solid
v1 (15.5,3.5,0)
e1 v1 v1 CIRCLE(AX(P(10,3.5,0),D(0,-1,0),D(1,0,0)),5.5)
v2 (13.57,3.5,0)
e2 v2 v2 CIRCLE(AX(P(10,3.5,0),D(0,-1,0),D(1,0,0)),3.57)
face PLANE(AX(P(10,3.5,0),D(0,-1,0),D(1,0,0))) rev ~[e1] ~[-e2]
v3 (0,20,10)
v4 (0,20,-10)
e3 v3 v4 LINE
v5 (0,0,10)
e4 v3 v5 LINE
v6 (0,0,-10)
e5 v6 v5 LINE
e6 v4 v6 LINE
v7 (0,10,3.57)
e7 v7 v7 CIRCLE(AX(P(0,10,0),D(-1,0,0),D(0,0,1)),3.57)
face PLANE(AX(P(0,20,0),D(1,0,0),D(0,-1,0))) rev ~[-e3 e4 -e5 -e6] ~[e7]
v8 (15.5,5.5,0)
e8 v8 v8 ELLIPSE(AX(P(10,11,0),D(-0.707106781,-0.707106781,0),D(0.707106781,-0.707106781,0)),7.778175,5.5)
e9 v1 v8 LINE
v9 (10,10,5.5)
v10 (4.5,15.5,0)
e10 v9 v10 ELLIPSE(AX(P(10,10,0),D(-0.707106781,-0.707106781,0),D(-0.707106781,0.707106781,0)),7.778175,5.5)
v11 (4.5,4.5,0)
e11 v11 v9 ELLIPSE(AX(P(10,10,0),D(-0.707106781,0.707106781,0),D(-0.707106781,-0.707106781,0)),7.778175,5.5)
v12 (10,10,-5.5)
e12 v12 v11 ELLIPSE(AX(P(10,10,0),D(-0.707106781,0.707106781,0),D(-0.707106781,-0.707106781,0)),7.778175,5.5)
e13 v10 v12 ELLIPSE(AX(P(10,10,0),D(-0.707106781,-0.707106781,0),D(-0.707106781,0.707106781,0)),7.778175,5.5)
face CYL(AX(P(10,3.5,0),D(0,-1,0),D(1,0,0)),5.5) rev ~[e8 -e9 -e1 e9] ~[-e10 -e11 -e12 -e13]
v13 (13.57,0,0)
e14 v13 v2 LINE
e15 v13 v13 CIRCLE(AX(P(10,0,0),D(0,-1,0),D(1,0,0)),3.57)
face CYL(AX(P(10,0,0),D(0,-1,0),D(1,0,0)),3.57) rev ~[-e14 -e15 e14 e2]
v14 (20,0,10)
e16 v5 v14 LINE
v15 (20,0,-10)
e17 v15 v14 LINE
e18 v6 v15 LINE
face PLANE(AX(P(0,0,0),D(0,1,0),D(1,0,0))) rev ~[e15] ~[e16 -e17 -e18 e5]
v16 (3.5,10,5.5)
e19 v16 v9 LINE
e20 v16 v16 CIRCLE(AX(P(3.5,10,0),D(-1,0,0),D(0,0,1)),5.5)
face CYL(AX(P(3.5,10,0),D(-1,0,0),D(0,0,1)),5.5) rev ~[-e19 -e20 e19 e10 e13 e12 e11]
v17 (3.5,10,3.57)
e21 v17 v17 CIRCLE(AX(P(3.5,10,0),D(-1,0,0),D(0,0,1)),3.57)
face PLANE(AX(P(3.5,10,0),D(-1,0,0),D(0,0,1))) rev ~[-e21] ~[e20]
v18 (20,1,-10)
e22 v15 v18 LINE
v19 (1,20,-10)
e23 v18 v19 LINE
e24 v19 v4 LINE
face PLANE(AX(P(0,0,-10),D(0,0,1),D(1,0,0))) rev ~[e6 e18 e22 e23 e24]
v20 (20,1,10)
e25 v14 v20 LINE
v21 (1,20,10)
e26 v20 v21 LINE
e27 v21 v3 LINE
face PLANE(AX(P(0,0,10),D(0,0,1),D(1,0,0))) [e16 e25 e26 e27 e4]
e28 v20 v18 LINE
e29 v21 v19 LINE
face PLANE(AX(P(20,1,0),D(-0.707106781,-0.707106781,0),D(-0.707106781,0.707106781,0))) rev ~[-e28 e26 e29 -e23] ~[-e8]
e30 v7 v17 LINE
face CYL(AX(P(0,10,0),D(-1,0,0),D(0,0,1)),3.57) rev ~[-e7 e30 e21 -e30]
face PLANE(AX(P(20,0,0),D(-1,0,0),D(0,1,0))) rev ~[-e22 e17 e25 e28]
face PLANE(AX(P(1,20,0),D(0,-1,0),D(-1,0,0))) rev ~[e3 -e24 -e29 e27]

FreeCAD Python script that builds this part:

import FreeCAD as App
import Part
import Sketcher

doc = App.newDocument("Part")
body = doc.addObject("PartDesign::Body", "Body")

sketch1 = body.newObject("Sketcher::SketchObject", "Sketch")
sketch1.AttachmentSupport = (doc.getObject("XY_Plane"), [""])
sketch1.MapMode = "FlatFace"
sketch1.addGeometry([
    Part.LineSegment(App.Vector(0, 20, 0), App.Vector(0, 0, 0)),
    Part.LineSegment(App.Vector(0, 0, 0), App.Vector(20, 0, 0)),
    Part.LineSegment(App.Vector(20, 0, 0), App.Vector(20, 1, 0)),
    Part.LineSegment(App.Vector(20, 1, 0), App.Vector(1, 20, 0)),
    Part.LineSegment(App.Vector(1, 20, 0), App.Vector(0, 20, 0)),
], False)
sketch1.addConstraint([
    Sketcher.Constraint("Coincident", 0, 2, 1, 1),
    Sketcher.Constraint("Coincident", 1, 2, 2, 1),
    Sketcher.Constraint("Coincident", 2, 2, 3, 1),
    Sketcher.Constraint("Coincident", 3, 2, 4, 1),
    Sketcher.Constraint("Coincident", 4, 2, 0, 1),
    Sketcher.Constraint("Vertical", 0),
    Sketcher.Constraint("Horizontal", 1),
    Sketcher.Constraint("Vertical", 2),
    Sketcher.Constraint("Horizontal", 4),
    Sketcher.Constraint("Coincident", 0, 2, -1, 1),
    Sketcher.Constraint("Equal", 1, 0),
    Sketcher.Constraint("Equal", 4, 2),
    Sketcher.Constraint("DistanceX", 1, 1, 1, 2, 20.0),
    Sketcher.Constraint("DistanceX", 4, 2, 4, 1, 1.0),
])
pad1 = body.newObject("PartDesign::Pad", "Pad")
pad1.Profile = sketch1
pad1.Length = 20
pad1.Midplane = True

sketch2 = body.newObject("Sketcher::SketchObject", "Sketch001")
sketch2.AttachmentSupport = (doc.getObject("XZ_Plane"), [""])
sketch2.MapMode = "FlatFace"
sketch2.addGeometry(Part.Circle(App.Vector(10, 0, 0), App.Vector(0, 0, 1), 3.6), False)
sketch2.addConstraint([
    Sketcher.Constraint("PointOnObject", 0, 3, -1),
    Sketcher.Constraint("Diameter", 0, 7.14),
    Sketcher.Constraint("DistanceX", -1, 1, 0, 3, 10.0),
])
pocket1 = body.newObject("PartDesign::Pocket", "Pocket")
pocket1.Profile = sketch2
pocket1.Length = 3.5

sketch3 = body.newObject("Sketcher::SketchObject", "Sketch002")
sketch3.AttachmentSupport = (doc.getObject("XZ_Plane"), [""])
sketch3.MapMode = "FlatFace"
sketch3.AttachmentOffset = App.Placement(App.Vector(0, 0, -3.5), App.Rotation())
sketch3.addGeometry(Part.Circle(App.Vector(10, 0, 0), App.Vector(0, 0, 1), 6), False)
sketch3.addConstraint([
    Sketcher.Constraint("PointOnObject", 0, 3, -1),
    Sketcher.Constraint("Diameter", 0, 11.0),
    Sketcher.Constraint("DistanceX", -1, 1, 0, 3, 10.0),
])
pocket2 = body.newObject("PartDesign::Pocket", "Pocket001")
pocket2.Profile = sketch3
pocket2.Type = "UpToFirst"

sketch4 = body.newObject("Sketcher::SketchObject", "Sketch003")
sketch4.AttachmentSupport = (doc.getObject("YZ_Plane"), [""])
sketch4.MapMode = "FlatFace"
sketch4.addGeometry(Part.Circle(App.Vector(10, 0, 0), App.Vector(0, 0, 1), 3.6), False)
sketch4.addConstraint([
    Sketcher.Constraint("PointOnObject", 0, 3, -1),
    Sketcher.Constraint("Diameter", 0, 7.14),
    Sketcher.Constraint("DistanceX", -1, 1, 0, 3, 10.0),
])
pocket3 = body.newObject("PartDesign::Pocket", "Pocket002")
pocket3.Profile = sketch4
pocket3.Length = 3.5
pocket3.Reversed = True

sketch5 = body.newObject("Sketcher::SketchObject", "Sketch004")
sketch5.AttachmentSupport = (doc.getObject("YZ_Plane"), [""])
sketch5.MapMode = "FlatFace"
sketch5.AttachmentOffset = App.Placement(App.Vector(0, 0, 3.5), App.Rotation())
sketch5.addGeometry(Part.Circle(App.Vector(10, 0, 0), App.Vector(0, 0, 1), 6), False)
sketch5.addConstraint([
    Sketcher.Constraint("PointOnObject", 0, 3, -1),
    Sketcher.Constraint("Diameter", 0, 11.0),
    Sketcher.Constraint("DistanceX", -1, 1, 0, 3, 10.0),
])
pocket4 = body.newObject("PartDesign::Pocket", "Pocket003")
pocket4.Profile = sketch5
pocket4.Type = "UpToFirst"
pocket4.Reversed = True

doc.recompute()
